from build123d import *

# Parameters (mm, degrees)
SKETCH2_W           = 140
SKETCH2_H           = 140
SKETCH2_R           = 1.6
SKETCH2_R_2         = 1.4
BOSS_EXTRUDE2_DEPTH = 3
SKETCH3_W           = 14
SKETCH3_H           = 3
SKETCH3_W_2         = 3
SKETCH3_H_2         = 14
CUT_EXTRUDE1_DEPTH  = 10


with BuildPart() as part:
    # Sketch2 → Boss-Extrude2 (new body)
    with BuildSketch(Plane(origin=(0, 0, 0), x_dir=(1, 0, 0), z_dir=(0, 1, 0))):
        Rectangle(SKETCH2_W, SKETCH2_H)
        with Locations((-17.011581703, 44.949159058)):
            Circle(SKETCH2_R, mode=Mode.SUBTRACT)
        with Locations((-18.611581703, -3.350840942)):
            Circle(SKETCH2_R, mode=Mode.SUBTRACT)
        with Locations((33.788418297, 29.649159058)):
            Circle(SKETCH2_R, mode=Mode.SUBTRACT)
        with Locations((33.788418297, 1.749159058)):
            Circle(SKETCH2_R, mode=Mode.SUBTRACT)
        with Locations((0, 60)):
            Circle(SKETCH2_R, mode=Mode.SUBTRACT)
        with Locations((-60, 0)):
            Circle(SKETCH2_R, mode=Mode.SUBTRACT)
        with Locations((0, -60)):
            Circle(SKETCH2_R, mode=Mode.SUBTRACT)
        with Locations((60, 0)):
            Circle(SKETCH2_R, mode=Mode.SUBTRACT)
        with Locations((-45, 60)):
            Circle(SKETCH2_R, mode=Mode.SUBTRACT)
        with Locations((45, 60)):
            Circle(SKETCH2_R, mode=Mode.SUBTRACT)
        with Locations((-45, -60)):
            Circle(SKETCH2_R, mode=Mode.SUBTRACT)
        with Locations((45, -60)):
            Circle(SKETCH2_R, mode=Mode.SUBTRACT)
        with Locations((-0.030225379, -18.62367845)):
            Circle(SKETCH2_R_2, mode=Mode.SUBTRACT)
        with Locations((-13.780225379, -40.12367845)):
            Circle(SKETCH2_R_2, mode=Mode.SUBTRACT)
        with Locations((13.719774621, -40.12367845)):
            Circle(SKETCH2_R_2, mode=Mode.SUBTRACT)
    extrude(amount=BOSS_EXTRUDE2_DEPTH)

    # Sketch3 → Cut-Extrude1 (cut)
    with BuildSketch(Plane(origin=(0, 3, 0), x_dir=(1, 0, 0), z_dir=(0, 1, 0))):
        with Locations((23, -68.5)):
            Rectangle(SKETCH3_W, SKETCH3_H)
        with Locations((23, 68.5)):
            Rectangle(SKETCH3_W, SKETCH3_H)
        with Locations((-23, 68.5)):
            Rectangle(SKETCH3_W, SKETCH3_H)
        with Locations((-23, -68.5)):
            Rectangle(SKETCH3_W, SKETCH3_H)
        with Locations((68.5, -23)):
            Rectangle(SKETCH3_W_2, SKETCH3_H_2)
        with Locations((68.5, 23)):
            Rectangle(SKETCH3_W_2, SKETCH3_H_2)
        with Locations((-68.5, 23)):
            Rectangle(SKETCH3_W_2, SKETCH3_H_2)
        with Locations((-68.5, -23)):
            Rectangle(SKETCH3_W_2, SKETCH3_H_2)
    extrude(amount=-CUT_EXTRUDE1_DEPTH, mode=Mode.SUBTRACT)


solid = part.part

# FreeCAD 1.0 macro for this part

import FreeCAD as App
import Part
import Sketcher
from FreeCAD import Vector


def add_polygon(sketch, points):
    """Adds a closed chain of lines whose ends are joined by coincident constraints."""
    first, n = sketch.GeometryCount, len(points)
    for a, b in zip(points, points[1:] + points[:1]):
        sketch.addGeometry(Part.LineSegment(App.Vector(*a, 0), App.Vector(*b, 0)), False)
    for i in range(n):
        sketch.addConstraint(Sketcher.Constraint("Coincident", first + i, 2, first + (i + 1) % n, 1))

doc = App.newDocument("Part")
body = doc.addObject("PartDesign::Body", "Body")

# Sketch on XZ plane
sketch1 = doc.addObject("Sketcher::SketchObject", "Sketch")
body.addObject(sketch1)
sketch1.AttachmentSupport = (doc.XZ_Plane, [""])
sketch1.MapMode = "FlatFace"
add_polygon(sketch1, [(-70, -70), (-70, 70), (70, 70), (70, -70)])  # lines 0-3
sketch1.addGeometry(Part.Circle(Vector(-45, 60, 0), Vector(0, 0, 1), 1.6), False)  # 4
sketch1.addGeometry(Part.Circle(Vector(0, 60, 0), Vector(0, 0, 1), 1.6), False)  # 5
sketch1.addGeometry(Part.Circle(Vector(-13.780225, 40.123678, 0), Vector(0, 0, 1), 1.4), False)  # 6
sketch1.addGeometry(Part.Circle(Vector(-60, 0, 0), Vector(0, 0, 1), 1.6), False)  # 7
sketch1.addGeometry(Part.Circle(Vector(-0.030225, 18.623678, 0), Vector(0, 0, 1), 1.4), False)  # 8
sketch1.addGeometry(Part.Circle(Vector(-18.611582, 3.350841, 0), Vector(0, 0, 1), 1.6), False)  # 9
sketch1.addGeometry(Part.Circle(Vector(13.719775, 40.123678, 0), Vector(0, 0, 1), 1.4), False)  # 10
sketch1.addGeometry(Part.Circle(Vector(45, 60, 0), Vector(0, 0, 1), 1.6), False)  # 11
sketch1.addGeometry(Part.Circle(Vector(60, 0, 0), Vector(0, 0, 1), 1.6), False)  # 12
sketch1.addGeometry(Part.Circle(Vector(-45, -60, 0), Vector(0, 0, 1), 1.6), False)  # 13
sketch1.addGeometry(Part.Circle(Vector(-17.011582, -44.949159, 0), Vector(0, 0, 1), 1.6), False)  # 14
sketch1.addGeometry(Part.Circle(Vector(0, -60, 0), Vector(0, 0, 1), 1.6), False)  # 15
sketch1.addGeometry(Part.Circle(Vector(33.788418, -1.749159, 0), Vector(0, 0, 1), 1.6), False)  # 16
sketch1.addGeometry(Part.Circle(Vector(33.788418, -29.649159, 0), Vector(0, 0, 1), 1.6), False)  # 17
sketch1.addGeometry(Part.Circle(Vector(45, -60, 0), Vector(0, 0, 1), 1.6), False)  # 18
sketch1.addConstraint([
    Sketcher.Constraint("Vertical", 0),
    Sketcher.Constraint("Horizontal", 1),
    Sketcher.Constraint("Vertical", 2),
    Sketcher.Constraint("Horizontal", 3),
    Sketcher.Constraint("Equal", 4, 5),
    Sketcher.Constraint("Equal", 5, 7),
    Sketcher.Constraint("Equal", 6, 8),
    Sketcher.Constraint("Equal", 7, 9),
    Sketcher.Constraint("Equal", 8, 10),
    Sketcher.Constraint("Equal", 9, 11),
    Sketcher.Constraint("Equal", 11, 12),
    Sketcher.Constraint("Equal", 12, 13),
    Sketcher.Constraint("Equal", 13, 14),
    Sketcher.Constraint("Equal", 14, 15),
    Sketcher.Constraint("Equal", 15, 16),
    Sketcher.Constraint("Equal", 16, 17),
    Sketcher.Constraint("Equal", 17, 18),
    Sketcher.Constraint("Symmetric", 7, 3, 12, 3, -1, 1),
    Sketcher.Constraint("Symmetric", 11, 3, 13, 3, -1, 1),
    Sketcher.Constraint("Symmetric", 5, 3, 15, 3, -1, 1),
    Sketcher.Constraint("Symmetric", 4, 3, 18, 3, -1, 1),
    Sketcher.Constraint("Symmetric", 0, 2, 2, 2, -1, 1),
    Sketcher.Constraint("Symmetric", 4, 3, 11, 3, -2),
    Sketcher.Constraint("PointOnObject", 5, 3, -2),
    Sketcher.Constraint("PointOnObject", 7, 3, -1),
    Sketcher.Constraint("Horizontal", 4, 3, 5, 3),
    Sketcher.Constraint("Horizontal", 6, 3, 10, 3),
    Sketcher.Constraint("Vertical", 16, 3, 17, 3),
    Sketcher.Constraint("Equal", 3, 0),
    Sketcher.Constraint("Diameter", 4, 3.2),
    Sketcher.Constraint("Diameter", 6, 2.8),
    Sketcher.Constraint("DistanceX", 1, 1, 1, 2, 140.0),
    Sketcher.Constraint("DistanceX", 4, 3, -1, 1, 45.0),
    Sketcher.Constraint("DistanceY", -1, 1, 4, 3, 60.0),
    Sketcher.Constraint("DistanceX", 7, 3, -1, 1, 60.0),
    Sketcher.Constraint("DistanceY", 8, 3, 6, 3, 21.5),
    Sketcher.Constraint("DistanceX", 6, 3, 10, 3, 27.5),
    Sketcher.Constraint("DistanceX", 9, 3, 14, 3, 1.6),
    Sketcher.Constraint("DistanceY", 14, 3, 9, 3, 48.3),
    Sketcher.Constraint("DistanceX", 9, 3, 16, 3, 52.4),
    Sketcher.Constraint("DistanceY", 16, 3, 9, 3, 5.1),
    Sketcher.Constraint("DistanceY", 17, 3, 16, 3, 27.9),
    Sketcher.Constraint("DistanceX", 6, 3, 8, 3, 13.75),
    Sketcher.Constraint("DistanceY", -1, 1, 6, 3, 40.123678),
    Sketcher.Constraint("DistanceX", 9, 3, -1, 1, 18.611582),
    Sketcher.Constraint("DistanceY", -1, 1, 9, 3, 3.350841),
    Sketcher.Constraint("DistanceX", 6, 3, -1, 1, 13.780225),
])
pad1 = doc.addObject("PartDesign::Pad", "Pad")
body.addObject(pad1)
pad1.Profile = sketch1
pad1.Length = 3
pad1.Reversed = True

# Sketch on XZ plane
sketch2 = doc.addObject("Sketcher::SketchObject", "Sketch001")
body.addObject(sketch2)
sketch2.AttachmentSupport = (doc.XZ_Plane, [""])
sketch2.MapMode = "FlatFace"
sketch2.AttachmentOffset = App.Placement(Vector(0, 0, -3), App.Rotation())
add_polygon(sketch2, [(16, 67), (16, 70), (30, 70), (30, 67)])  # lines 0-3
add_polygon(sketch2, [(16, -70), (16, -67), (30, -67), (30, -70)])  # lines 4-7
add_polygon(sketch2, [(-30, -70), (-30, -67), (-16, -67), (-16, -70)])  # lines 8-11
add_polygon(sketch2, [(-30, 67), (-30, 70), (-16, 70), (-16, 67)])  # lines 12-15
add_polygon(sketch2, [(67, 16), (67, 30), (70, 30), (70, 16)])  # lines 16-19
add_polygon(sketch2, [(67, -30), (67, -16), (70, -16), (70, -30)])  # lines 20-23
add_polygon(sketch2, [(-70, -30), (-70, -16), (-67, -16), (-67, -30)])  # lines 24-27
add_polygon(sketch2, [(-70, 16), (-70, 30), (-67, 30), (-67, 16)])  # lines 28-31
sketch2.addConstraint([
    Sketcher.Constraint("Vertical", 0),
    Sketcher.Constraint("Horizontal", 1),
    Sketcher.Constraint("Vertical", 2),
    Sketcher.Constraint("Horizontal", 3),
    Sketcher.Constraint("Vertical", 4),
    Sketcher.Constraint("Horizontal", 5),
    Sketcher.Constraint("Vertical", 6),
    Sketcher.Constraint("Horizontal", 7),
    Sketcher.Constraint("Vertical", 8),
    Sketcher.Constraint("Horizontal", 9),
    Sketcher.Constraint("Vertical", 10),
    Sketcher.Constraint("Horizontal", 11),
    Sketcher.Constraint("Vertical", 12),
    Sketcher.Constraint("Horizontal", 13),
    Sketcher.Constraint("Vertical", 14),
    Sketcher.Constraint("Horizontal", 15),
    Sketcher.Constraint("Vertical", 16),
    Sketcher.Constraint("Horizontal", 17),
    Sketcher.Constraint("Vertical", 18),
    Sketcher.Constraint("Horizontal", 19),
    Sketcher.Constraint("Vertical", 20),
    Sketcher.Constraint("Horizontal", 21),
    Sketcher.Constraint("Vertical", 22),
    Sketcher.Constraint("Horizontal", 23),
    Sketcher.Constraint("Vertical", 24),
    Sketcher.Constraint("Horizontal", 25),
    Sketcher.Constraint("Vertical", 26),
    Sketcher.Constraint("Horizontal", 27),
    Sketcher.Constraint("Vertical", 28),
    Sketcher.Constraint("Horizontal", 29),
    Sketcher.Constraint("Vertical", 30),
    Sketcher.Constraint("Horizontal", 31),
    Sketcher.Constraint("Symmetric", 2, 2, 8, 2, -1, 1),
    Sketcher.Constraint("Symmetric", 0, 2, 10, 2, -1, 1),
    Sketcher.Constraint("Symmetric", 6, 2, 12, 2, -1, 1),
    Sketcher.Constraint("Symmetric", 4, 2, 14, 2, -1, 1),
    Sketcher.Constraint("Symmetric", 18, 2, 24, 2, -1, 1),
    Sketcher.Constraint("Symmetric", 16, 2, 26, 2, -1, 1),
    Sketcher.Constraint("Symmetric", 22, 2, 28, 2, -1, 1),
    Sketcher.Constraint("Symmetric", 20, 2, 30, 2, -1, 1),
    Sketcher.Constraint("Symmetric", 5, 2, 8, 2, -2),
    Sketcher.Constraint("Symmetric", 7, 2, 10, 2, -2),
    Sketcher.Constraint("Symmetric", 21, 2, 24, 2, -2),
    Sketcher.Constraint("Symmetric", 23, 2, 26, 2, -2),
    Sketcher.Constraint("Equal", 31, 0),
    Sketcher.Constraint("Equal", 15, 16),
    Sketcher.Constraint("DistanceX", 1, 1, 1, 2, 14.0),
    Sketcher.Constraint("DistanceX", 17, 1, 17, 2, 3.0),
    Sketcher.Constraint("DistanceX", -1, 1, 0, 2, 16.0),
    Sketcher.Constraint("DistanceY", -1, 1, 0, 2, 70.0),
    Sketcher.Constraint("DistanceX", -1, 1, 16, 2, 67.0),
    Sketcher.Constraint("DistanceY", -1, 1, 16, 2, 30.0),
])
pocket1 = doc.addObject("PartDesign::Pocket", "Pocket")
body.addObject(pocket1)
pocket1.Profile = sketch2
pocket1.Length = 10
pocket1.Reversed = True

doc.recompute()
